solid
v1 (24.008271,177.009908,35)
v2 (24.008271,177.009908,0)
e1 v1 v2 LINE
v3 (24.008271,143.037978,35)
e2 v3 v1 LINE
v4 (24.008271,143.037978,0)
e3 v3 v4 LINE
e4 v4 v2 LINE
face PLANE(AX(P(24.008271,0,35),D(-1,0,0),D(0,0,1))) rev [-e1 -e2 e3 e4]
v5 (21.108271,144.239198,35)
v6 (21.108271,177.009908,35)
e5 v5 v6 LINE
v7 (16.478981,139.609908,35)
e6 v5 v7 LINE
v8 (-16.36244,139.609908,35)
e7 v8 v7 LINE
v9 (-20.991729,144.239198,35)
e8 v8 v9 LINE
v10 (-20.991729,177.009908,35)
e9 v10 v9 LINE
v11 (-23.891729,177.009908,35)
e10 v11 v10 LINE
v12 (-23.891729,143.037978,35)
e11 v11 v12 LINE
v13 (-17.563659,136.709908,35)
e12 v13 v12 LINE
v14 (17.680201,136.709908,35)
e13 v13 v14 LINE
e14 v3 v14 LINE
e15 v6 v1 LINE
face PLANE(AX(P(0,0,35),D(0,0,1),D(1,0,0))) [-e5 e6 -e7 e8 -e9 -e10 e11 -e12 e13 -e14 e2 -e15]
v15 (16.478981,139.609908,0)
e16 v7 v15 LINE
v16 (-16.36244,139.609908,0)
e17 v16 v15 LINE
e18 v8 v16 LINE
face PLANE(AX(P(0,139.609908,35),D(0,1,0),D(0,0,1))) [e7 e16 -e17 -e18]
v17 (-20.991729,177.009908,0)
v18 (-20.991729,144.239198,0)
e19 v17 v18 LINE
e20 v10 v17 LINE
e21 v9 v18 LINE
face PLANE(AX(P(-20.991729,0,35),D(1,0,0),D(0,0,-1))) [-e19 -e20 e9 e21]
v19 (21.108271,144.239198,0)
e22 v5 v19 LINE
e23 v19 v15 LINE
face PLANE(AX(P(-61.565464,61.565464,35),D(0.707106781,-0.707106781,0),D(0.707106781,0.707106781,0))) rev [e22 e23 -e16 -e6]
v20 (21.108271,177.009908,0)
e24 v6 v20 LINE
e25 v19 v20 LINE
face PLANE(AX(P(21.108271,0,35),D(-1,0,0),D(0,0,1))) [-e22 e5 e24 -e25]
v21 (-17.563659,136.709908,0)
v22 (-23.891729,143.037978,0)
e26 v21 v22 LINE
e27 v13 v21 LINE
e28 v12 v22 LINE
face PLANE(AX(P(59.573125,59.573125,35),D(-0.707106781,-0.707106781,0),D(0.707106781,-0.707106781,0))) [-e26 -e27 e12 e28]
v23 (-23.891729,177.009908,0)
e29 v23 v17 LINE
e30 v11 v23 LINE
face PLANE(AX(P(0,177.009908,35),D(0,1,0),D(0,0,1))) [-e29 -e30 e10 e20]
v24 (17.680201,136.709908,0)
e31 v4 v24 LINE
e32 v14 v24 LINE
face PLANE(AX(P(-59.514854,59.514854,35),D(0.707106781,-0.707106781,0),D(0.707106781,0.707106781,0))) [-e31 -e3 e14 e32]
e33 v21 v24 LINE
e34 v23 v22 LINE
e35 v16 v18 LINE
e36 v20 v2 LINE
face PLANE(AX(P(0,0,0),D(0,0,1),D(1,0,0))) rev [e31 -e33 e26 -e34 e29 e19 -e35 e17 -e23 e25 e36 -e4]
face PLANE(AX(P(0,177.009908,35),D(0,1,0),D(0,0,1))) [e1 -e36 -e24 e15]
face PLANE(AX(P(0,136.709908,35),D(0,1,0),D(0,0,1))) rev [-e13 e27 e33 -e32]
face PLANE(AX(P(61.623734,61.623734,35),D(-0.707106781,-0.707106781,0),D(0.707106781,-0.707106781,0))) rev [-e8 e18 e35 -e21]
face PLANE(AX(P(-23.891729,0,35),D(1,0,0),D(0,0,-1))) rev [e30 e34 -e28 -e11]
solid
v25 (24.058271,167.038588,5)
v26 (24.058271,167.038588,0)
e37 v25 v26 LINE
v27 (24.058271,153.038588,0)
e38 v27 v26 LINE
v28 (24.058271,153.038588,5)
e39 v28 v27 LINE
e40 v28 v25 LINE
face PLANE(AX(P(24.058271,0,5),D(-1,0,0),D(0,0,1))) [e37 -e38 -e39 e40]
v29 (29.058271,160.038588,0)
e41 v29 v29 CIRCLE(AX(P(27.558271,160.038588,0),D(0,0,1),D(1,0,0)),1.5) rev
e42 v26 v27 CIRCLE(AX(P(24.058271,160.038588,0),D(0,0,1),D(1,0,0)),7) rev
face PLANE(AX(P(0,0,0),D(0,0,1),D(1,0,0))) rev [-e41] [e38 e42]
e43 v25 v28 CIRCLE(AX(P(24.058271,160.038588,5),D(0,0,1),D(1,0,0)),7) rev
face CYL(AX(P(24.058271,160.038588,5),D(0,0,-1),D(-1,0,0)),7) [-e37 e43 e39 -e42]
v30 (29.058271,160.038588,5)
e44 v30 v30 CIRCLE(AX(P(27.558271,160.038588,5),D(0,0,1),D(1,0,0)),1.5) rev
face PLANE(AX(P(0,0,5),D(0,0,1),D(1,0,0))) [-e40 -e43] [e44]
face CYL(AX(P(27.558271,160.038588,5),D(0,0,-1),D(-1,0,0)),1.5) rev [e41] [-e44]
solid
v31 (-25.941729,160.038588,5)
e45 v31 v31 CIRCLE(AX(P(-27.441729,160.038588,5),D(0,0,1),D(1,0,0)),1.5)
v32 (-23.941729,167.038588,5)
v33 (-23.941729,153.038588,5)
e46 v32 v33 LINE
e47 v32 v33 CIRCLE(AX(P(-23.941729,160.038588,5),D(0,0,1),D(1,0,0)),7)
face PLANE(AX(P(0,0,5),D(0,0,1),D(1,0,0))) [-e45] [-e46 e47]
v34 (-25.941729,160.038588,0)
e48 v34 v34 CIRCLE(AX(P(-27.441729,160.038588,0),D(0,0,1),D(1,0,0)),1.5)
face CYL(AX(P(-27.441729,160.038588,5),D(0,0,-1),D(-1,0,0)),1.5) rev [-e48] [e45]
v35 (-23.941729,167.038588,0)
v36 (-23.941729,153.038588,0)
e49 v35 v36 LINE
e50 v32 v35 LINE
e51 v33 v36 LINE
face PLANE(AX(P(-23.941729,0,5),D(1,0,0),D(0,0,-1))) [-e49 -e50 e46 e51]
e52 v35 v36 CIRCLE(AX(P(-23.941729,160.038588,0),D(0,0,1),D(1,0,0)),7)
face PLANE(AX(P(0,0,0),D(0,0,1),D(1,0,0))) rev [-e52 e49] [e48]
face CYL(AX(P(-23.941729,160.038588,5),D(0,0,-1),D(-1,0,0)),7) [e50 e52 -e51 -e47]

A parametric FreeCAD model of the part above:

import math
import FreeCAD as App
import Part
import Sketcher
from FreeCAD import Vector
Q = App.Units.Quantity

doc = App.newDocument("Part")
body = doc.addObject("PartDesign::Body", "Body")

sketch1 = doc.addObject("Sketcher::SketchObject", "Sketch")
body.addObject(sketch1)
sketch1.AttachmentSupport = (doc.XY_Plane, [""])
sketch1.MapMode = "FlatFace"
sketch1.addGeometry([
    Part.LineSegment(Vector(21.108271, 177.009908, 0), Vector(21.108271, 144.239198, 0)),
    Part.LineSegment(Vector(21.108271, 144.239198, 0), Vector(16.478981, 139.609908, 0)),
    Part.LineSegment(Vector(16.478981, 139.609908, 0), Vector(-16.36244, 139.609908, 0)),
    Part.LineSegment(Vector(-16.36244, 139.609908, 0), Vector(-20.991729, 144.239198, 0)),
    Part.LineSegment(Vector(-20.991729, 144.239198, 0), Vector(-20.991729, 177.009908, 0)),
    Part.LineSegment(Vector(-20.991729, 177.009908, 0), Vector(-23.891729, 177.009908, 0)),
    Part.LineSegment(Vector(-23.891729, 177.009908, 0), Vector(-23.891729, 143.037978, 0)),
    Part.LineSegment(Vector(-23.891729, 143.037978, 0), Vector(-17.563659, 136.709908, 0)),
    Part.LineSegment(Vector(-17.563659, 136.709908, 0), Vector(17.680201, 136.709908, 0)),
    Part.LineSegment(Vector(17.680201, 136.709908, 0), Vector(24.008271, 143.037978, 0)),
    Part.LineSegment(Vector(24.008271, 143.037978, 0), Vector(24.008271, 177.009908, 0)),
    Part.LineSegment(Vector(24.008271, 177.009908, 0), Vector(21.108271, 177.009908, 0)),
], False)
sketch1.addConstraint([
    Sketcher.Constraint("Coincident", 0, 2, 1, 1),
    Sketcher.Constraint("Coincident", 1, 2, 2, 1),
    Sketcher.Constraint("Coincident", 2, 2, 3, 1),
    Sketcher.Constraint("Coincident", 3, 2, 4, 1),
    Sketcher.Constraint("Coincident", 4, 2, 5, 1),
    Sketcher.Constraint("Coincident", 5, 2, 6, 1),
    Sketcher.Constraint("Coincident", 6, 2, 7, 1),
    Sketcher.Constraint("Coincident", 7, 2, 8, 1),
    Sketcher.Constraint("Coincident", 8, 2, 9, 1),
    Sketcher.Constraint("Coincident", 9, 2, 10, 1),
    Sketcher.Constraint("Coincident", 10, 2, 11, 1),
    Sketcher.Constraint("Coincident", 11, 2, 0, 1),
    Sketcher.Constraint("Vertical", 0),
    Sketcher.Constraint("Horizontal", 2),
    Sketcher.Constraint("Vertical", 4),
    Sketcher.Constraint("Horizontal", 5),
    Sketcher.Constraint("Vertical", 6),
    Sketcher.Constraint("Horizontal", 8),
    Sketcher.Constraint("Vertical", 10),
    Sketcher.Constraint("Horizontal", 11),
    Sketcher.Constraint("Perpendicular", 1, 3),
    Sketcher.Constraint("Parallel", 3, 7),
    Sketcher.Constraint("Perpendicular", 7, 9),
    Sketcher.Constraint("Horizontal", 0, 2, 3, 2),
    Sketcher.Constraint("Horizontal", 6, 2, 9, 2),
    Sketcher.Constraint("Horizontal", 5, 2, 10, 2),
    Sketcher.Constraint("Equal", 5, 11),
    Sketcher.Constraint("Equal", 1, 3),
    Sketcher.Constraint("DistanceX", 5, 2, 5, 1, Q("2.9 mm")),
    Sketcher.Constraint("DistanceX", 5, 2, 0, 2, Q("45 mm")),
    Sketcher.Constraint("DistanceY", 2, 2, 4, 2, Q("37.4 mm")),
    Sketcher.Constraint("DistanceY", 7, 2, 2, 2, Q("2.9 mm")),
    Sketcher.Constraint("DistanceX", 2, 2, 2, 1, Q("32.841421 mm")),
    Sketcher.Constraint("DistanceX", 8, 1, 8, 2, Q("35.24386 mm")),
    Sketcher.Constraint("DistanceX", -1, 1, 8, 2, Q("17.680201 mm")),
    Sketcher.Constraint("DistanceY", -1, 1, 1, 2, Q("139.609908 mm")),
])
pad1 = doc.addObject("PartDesign::Pad", "Pad")
body.addObject(pad1)
pad1.Profile = sketch1
pad1.Length = 35
body2 = doc.addObject("PartDesign::Body", "Body001")

sketch2 = doc.addObject("Sketcher::SketchObject", "Sketch001")
body2.addObject(sketch2)
sketch2.AttachmentSupport = (doc.getObject("XY_Plane001"), [""])
sketch2.MapMode = "FlatFace"
sketch2.addGeometry([
    Part.ArcOfCircle(Part.Circle(Vector(24.058271, 160.038588, 0), Vector(0, 0, 1), 7), math.radians(-90), math.radians(90)),
    Part.LineSegment(Vector(24.058271, 167.038588, 0), Vector(24.058271, 153.038588, 0)),
    Part.Circle(Vector(27.558271, 160.038588, 0), Vector(0, 0, 1), 1.5),
], False)
sketch2.addConstraint([
    Sketcher.Constraint("Coincident", 0, 1, 1, 2),
    Sketcher.Constraint("Coincident", 1, 1, 0, 2),
    Sketcher.Constraint("Vertical", 1),
    Sketcher.Constraint("Horizontal", 0, 3, 2, 3),
    Sketcher.Constraint("Diameter", 2, Q("3 mm")),
    Sketcher.Constraint("Radius", 0, Q("7 mm")),
    Sketcher.Constraint("DistanceX", 0, 3, 2, 3, Q("3.5 mm")),
    Sketcher.Constraint("DistanceX", 0, 1, 2, 3, Q("3.5 mm")),
    Sketcher.Constraint("DistanceX", -1, 1, 0, 3, Q("24.058271 mm")),
    Sketcher.Constraint("DistanceY", -1, 1, 0, 3, Q("160.038588 mm")),
])
pad2 = doc.addObject("PartDesign::Pad", "Pad001")
body2.addObject(pad2)
pad2.Profile = sketch2
pad2.Length = 5
body3 = doc.addObject("PartDesign::Body", "Body002")

sketch3 = doc.addObject("Sketcher::SketchObject", "Sketch002")
body3.addObject(sketch3)
sketch3.AttachmentSupport = (doc.getObject("XY_Plane002"), [""])
sketch3.MapMode = "FlatFace"
sketch3.addGeometry([
    Part.LineSegment(Vector(-23.941729, 153.038588, 0), Vector(-23.941729, 167.038588, 0)),
    Part.ArcOfCircle(Part.Circle(Vector(-23.941729, 160.038588, 0), Vector(0, 0, 1), 7), math.radians(90), math.radians(270)),
    Part.Circle(Vector(-27.441729, 160.038588, 0), Vector(0, 0, 1), 1.5),
], False)
sketch3.addConstraint([
    Sketcher.Constraint("Coincident", 0, 1, 1, 2),
    Sketcher.Constraint("Coincident", 1, 1, 0, 2),
    Sketcher.Constraint("Vertical", 0),
    Sketcher.Constraint("Horizontal", 1, 3, 2, 3),
    Sketcher.Constraint("Vertical", 1, 3, 0, 1),
    Sketcher.Constraint("Diameter", 2, Q("3 mm")),
    Sketcher.Constraint("Radius", 1, Q("7 mm")),
    Sketcher.Constraint("DistanceX", 2, 3, 1, 3, Q("3.5 mm")),
    Sketcher.Constraint("DistanceX", 1, 3, -1, 1, Q("23.941729 mm")),
    Sketcher.Constraint("DistanceY", -1, 1, 1, 3, Q("160.038588 mm")),
])
pad3 = doc.addObject("PartDesign::Pad", "Pad002")
body3.addObject(pad3)
pad3.Profile = sketch3
pad3.Length = 5

doc.recompute()
